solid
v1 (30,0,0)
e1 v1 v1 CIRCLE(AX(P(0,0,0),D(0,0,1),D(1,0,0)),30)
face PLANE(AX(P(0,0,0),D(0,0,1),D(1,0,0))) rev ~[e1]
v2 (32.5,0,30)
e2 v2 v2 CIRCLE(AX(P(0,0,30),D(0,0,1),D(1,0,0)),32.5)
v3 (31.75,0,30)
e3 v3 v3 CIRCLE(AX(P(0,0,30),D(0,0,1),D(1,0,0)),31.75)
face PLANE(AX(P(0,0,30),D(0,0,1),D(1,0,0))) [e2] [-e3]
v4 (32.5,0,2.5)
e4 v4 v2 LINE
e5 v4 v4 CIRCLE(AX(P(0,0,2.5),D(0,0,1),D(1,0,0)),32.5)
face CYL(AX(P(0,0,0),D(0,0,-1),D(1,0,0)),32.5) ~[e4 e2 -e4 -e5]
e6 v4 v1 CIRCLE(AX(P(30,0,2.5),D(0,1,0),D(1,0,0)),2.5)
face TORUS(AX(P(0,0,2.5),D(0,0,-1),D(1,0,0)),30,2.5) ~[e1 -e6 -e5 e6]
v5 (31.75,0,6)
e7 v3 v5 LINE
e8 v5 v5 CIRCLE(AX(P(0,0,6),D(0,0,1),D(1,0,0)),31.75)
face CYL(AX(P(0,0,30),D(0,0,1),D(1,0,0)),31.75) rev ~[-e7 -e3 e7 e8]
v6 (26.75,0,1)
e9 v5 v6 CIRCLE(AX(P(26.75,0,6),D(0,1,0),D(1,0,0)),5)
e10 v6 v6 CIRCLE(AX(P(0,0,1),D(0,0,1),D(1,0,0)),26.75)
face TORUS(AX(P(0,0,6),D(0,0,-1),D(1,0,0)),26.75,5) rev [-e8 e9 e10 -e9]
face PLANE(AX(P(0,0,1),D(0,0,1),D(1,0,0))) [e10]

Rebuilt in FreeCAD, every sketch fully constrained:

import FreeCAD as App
import Part
import Sketcher

V = App.Vector
Q = App.Units.Quantity


def edges_at(feature, points):
    """Names of the edges that pass closest to the given points."""
    edges = feature.Shape.Edges
    near = lambda p: min(range(len(edges)), key=lambda i: edges[i].distToShape(Part.Vertex(*p))[0])
    return sorted({f"Edge{near(p) + 1}" for p in points})

doc = App.newDocument("Part")
body = doc.addObject("PartDesign::Body", "Body")

# Sketch on XY plane
sketch1 = doc.addObject("Sketcher::SketchObject", "Sketch")
body.addObject(sketch1)
sketch1.AttachmentSupport = (doc.XY_Plane, [""])
sketch1.MapMode = "FlatFace"
sketch1.addGeometry(Part.Circle(V(0, 0, 0), V(0, 0, 1), 32), False)
sketch1.addConstraint([
    Sketcher.Constraint("Coincident", 0, 3, -1, 1),
    Sketcher.Constraint("Diameter", 0, Q("65 mm")),
])
pad1 = doc.addObject("PartDesign::Pad", "Pad")
body.addObject(pad1)
pad1.Profile = sketch1
pad1.Length = 30

# Sketch on XY plane
sketch2 = doc.addObject("Sketcher::SketchObject", "Sketch001")
body.addObject(sketch2)
sketch2.AttachmentSupport = (doc.XY_Plane, [""])
sketch2.MapMode = "FlatFace"
sketch2.AttachmentOffset = App.Placement(V(0, 0, 30), App.Rotation())
sketch2.addGeometry(Part.Circle(V(0, 0, 0), V(0, 0, 1), 32), False)
sketch2.addConstraint([
    Sketcher.Constraint("Coincident", 0, 3, -1, 1),
    Sketcher.Constraint("Diameter", 0, Q("63.5 mm")),
])
pocket1 = doc.addObject("PartDesign::Pocket", "Pocket")
body.addObject(pocket1)
pocket1.Profile = sketch2
pocket1.Length = 29
doc.recompute()

fillet = doc.addObject("PartDesign::Fillet", "Fillet")
body.addObject(fillet)
fillet.Base = (pocket1, edges_at(pocket1, [(-31.75, 0, 1)]))
fillet.Radius = 5
doc.recompute()

fillet2 = doc.addObject("PartDesign::Fillet", "Fillet001")
body.addObject(fillet2)
fillet2.Base = (fillet, edges_at(fillet, [(-32.5, 0, 0)]))
fillet2.Radius = 2.5

doc.recompute()
